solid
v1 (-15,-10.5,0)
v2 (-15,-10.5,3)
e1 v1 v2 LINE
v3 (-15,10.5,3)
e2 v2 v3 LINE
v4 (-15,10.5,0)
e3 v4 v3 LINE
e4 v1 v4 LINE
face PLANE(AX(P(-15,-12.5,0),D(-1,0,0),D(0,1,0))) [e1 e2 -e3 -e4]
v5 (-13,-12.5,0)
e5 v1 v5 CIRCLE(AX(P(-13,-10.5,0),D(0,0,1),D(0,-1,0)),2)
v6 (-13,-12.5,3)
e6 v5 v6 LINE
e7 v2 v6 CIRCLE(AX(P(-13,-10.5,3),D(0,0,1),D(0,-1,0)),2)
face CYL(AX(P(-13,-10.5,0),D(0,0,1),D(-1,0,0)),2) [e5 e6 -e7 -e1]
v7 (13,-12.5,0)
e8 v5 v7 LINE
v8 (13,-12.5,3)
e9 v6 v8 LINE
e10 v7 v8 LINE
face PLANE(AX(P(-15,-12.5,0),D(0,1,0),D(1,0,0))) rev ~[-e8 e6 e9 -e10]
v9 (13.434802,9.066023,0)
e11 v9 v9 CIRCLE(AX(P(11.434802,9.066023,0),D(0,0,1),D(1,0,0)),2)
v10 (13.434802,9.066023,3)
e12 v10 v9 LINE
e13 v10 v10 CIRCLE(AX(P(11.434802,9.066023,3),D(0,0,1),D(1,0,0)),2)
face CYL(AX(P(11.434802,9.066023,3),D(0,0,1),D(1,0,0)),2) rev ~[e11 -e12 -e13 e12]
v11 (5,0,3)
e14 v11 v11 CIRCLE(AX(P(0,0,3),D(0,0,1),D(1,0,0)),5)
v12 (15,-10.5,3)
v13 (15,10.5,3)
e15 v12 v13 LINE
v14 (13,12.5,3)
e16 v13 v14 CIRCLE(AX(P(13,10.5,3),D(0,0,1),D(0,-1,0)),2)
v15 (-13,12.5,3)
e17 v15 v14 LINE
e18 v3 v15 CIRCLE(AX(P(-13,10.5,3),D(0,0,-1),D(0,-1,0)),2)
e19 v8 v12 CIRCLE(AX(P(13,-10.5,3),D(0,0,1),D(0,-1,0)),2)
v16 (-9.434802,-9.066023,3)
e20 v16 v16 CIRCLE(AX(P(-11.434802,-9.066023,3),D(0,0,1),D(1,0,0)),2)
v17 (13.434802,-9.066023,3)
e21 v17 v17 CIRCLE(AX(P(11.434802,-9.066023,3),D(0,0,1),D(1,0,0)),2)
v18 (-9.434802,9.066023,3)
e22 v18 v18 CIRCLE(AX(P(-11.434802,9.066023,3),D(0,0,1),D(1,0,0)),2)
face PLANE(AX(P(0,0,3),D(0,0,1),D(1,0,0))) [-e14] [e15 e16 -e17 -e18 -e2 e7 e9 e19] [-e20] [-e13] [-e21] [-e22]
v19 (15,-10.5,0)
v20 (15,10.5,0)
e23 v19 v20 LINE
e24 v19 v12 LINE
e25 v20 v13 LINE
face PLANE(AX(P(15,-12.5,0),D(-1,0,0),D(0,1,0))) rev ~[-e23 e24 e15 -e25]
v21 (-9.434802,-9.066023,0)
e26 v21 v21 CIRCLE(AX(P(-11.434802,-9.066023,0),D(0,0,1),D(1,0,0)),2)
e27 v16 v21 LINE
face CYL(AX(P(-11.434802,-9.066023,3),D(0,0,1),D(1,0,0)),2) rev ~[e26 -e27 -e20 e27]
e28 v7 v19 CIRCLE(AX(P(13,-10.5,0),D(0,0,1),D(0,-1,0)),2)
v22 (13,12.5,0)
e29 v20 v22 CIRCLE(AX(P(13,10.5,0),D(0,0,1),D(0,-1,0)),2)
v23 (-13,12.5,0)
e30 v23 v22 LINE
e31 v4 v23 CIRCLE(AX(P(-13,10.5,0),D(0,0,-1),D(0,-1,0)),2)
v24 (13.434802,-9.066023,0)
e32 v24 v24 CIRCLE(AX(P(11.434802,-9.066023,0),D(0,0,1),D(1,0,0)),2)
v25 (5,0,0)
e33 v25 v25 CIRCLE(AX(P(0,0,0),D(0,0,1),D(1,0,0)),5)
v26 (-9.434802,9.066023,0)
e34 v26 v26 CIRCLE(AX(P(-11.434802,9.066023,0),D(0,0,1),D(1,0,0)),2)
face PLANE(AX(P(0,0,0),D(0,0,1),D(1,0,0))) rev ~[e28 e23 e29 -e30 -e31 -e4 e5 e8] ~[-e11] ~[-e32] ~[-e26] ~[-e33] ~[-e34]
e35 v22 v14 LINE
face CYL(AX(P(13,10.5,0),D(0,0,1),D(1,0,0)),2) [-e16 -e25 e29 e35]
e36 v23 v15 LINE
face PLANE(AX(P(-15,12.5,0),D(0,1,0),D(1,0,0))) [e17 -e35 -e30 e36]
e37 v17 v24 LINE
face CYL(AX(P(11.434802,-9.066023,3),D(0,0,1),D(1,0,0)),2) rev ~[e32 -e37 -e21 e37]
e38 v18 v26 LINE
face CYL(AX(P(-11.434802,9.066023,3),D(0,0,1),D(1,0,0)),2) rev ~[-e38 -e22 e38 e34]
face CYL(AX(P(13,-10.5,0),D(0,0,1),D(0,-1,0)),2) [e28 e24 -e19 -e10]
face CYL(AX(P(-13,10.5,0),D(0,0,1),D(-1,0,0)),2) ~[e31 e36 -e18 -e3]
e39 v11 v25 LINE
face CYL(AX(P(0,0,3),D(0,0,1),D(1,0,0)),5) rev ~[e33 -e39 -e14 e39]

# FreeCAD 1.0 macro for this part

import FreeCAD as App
import Part
import Sketcher

V = App.Vector


def edges_at(feature, points):
    """Names of the edges that pass closest to the given points."""
    edges = feature.Shape.Edges
    near = lambda p: min(range(len(edges)), key=lambda i: edges[i].distToShape(Part.Vertex(*p))[0])
    return sorted({f"Edge{near(p) + 1}" for p in points})


def add_polygon(sketch, points):
    """Adds a closed chain of lines whose ends are joined by coincident constraints."""
    first, n = sketch.GeometryCount, len(points)
    for a, b in zip(points, points[1:] + points[:1]):
        sketch.addGeometry(Part.LineSegment(App.Vector(*a, 0), App.Vector(*b, 0)), False)
    for i in range(n):
        sketch.addConstraint(Sketcher.Constraint("Coincident", first + i, 2, first + (i + 1) % n, 1))

doc = App.newDocument("Part")
params = doc.addObject("Spreadsheet::Sheet", "Params")
for row, (alias, value) in enumerate([
    ("sketch1_width", "30 mm"),
    ("sketch1_height", "25 mm"),
    ("pad1_length", "3 mm"),
    ("fillet_radius", "2 mm"),
    ("sketch2_diameter", "10 mm"),
    ("pocket1_length", "3 mm"),
    ("sketch3_diameter", "4 mm"),
    ("pocket2_length", "3 mm"),
], start=1):
    params.set(f"A{row}", alias)
    params.set(f"B{row}", "=" + value)
    params.setAlias(f"B{row}", alias)

body = doc.addObject("PartDesign::Body", "Body")

sketch1 = doc.addObject("Sketcher::SketchObject", "Sketch")
body.addObject(sketch1)
sketch1.AttachmentSupport = (doc.XY_Plane, [""])
sketch1.MapMode = "FlatFace"
add_polygon(sketch1, [(-15, 12.5), (-15, -12.5), (15, -12.5), (15, 12.5)])
sketch1.addConstraint(Sketcher.Constraint("Vertical", 0))
sketch1.addConstraint(Sketcher.Constraint("Horizontal", 1))
sketch1.addConstraint(Sketcher.Constraint("Vertical", 2))
sketch1.addConstraint(Sketcher.Constraint("Horizontal", 3))
sketch1.addConstraint(Sketcher.Constraint("Symmetric", 0, 2, 2, 2, -1, 1))
sketch1.addConstraint(Sketcher.Constraint("DistanceX", 1, 1, 1, 2, 30.0))
sketch1.addConstraint(Sketcher.Constraint("DistanceY", 0, 2, 0, 1, 25.0))
sketch1.setExpression("Constraints[9]", "Params.sketch1_width")
sketch1.setExpression("Constraints[10]", "Params.sketch1_height")
pad1 = doc.addObject("PartDesign::Pad", "Pad")
body.addObject(pad1)
pad1.Profile = sketch1
pad1.setExpression("Length", "Params.pad1_length")
doc.recompute()

fillet = doc.addObject("PartDesign::Fillet", "Fillet")
body.addObject(fillet)
fillet.Base = (pad1, edges_at(pad1, [
    (15, 12.5, 1.5),
    (-15, 12.5, 1.5),
    (-15, -12.5, 1.5),
    (15, -12.5, 1.5),
]))
fillet.setExpression("Radius", "Params.fillet_radius")

sketch2 = doc.addObject("Sketcher::SketchObject", "Sketch001")
body.addObject(sketch2)
sketch2.AttachmentSupport = (doc.XY_Plane, [""])
sketch2.MapMode = "FlatFace"
sketch2.AttachmentOffset = App.Placement(V(0, 0, 3), App.Rotation())
sketch2.addGeometry(Part.Circle(V(0, 0, 0), V(0, 0, 1), 5), False)
sketch2.addConstraint(Sketcher.Constraint("Coincident", 0, 3, -1, 1))
sketch2.addConstraint(Sketcher.Constraint("Diameter", 0, 10.0))
sketch2.setExpression("Constraints[1]", "Params.sketch2_diameter")
pocket1 = doc.addObject("PartDesign::Pocket", "Pocket")
body.addObject(pocket1)
pocket1.Profile = sketch2
pocket1.setExpression("Length", "Params.pocket1_length")

sketch3 = doc.addObject("Sketcher::SketchObject", "Sketch002")
body.addObject(sketch3)
sketch3.AttachmentSupport = (doc.XY_Plane, [""])
sketch3.MapMode = "FlatFace"
sketch3.AttachmentOffset = App.Placement(V(0, 0, 3), App.Rotation())
sketch3.addGeometry(Part.Circle(V(-11.434802, 9.066023, 0), V(0, 0, 1), 2), False)
sketch3.addGeometry(Part.Circle(V(11.434802, 9.066023, 0), V(0, 0, 1), 2), False)
sketch3.addGeometry(Part.Circle(V(-11.434802, -9.066023, 0), V(0, 0, 1), 2), False)
sketch3.addGeometry(Part.Circle(V(11.434802, -9.066023, 0), V(0, 0, 1), 2), False)
sketch3.addConstraint(Sketcher.Constraint("Equal", 0, 1))
sketch3.addConstraint(Sketcher.Constraint("Equal", 1, 2))
sketch3.addConstraint(Sketcher.Constraint("Equal", 2, 3))
sketch3.addConstraint(Sketcher.Constraint("Symmetric", 1, 3, 2, 3, -1, 1))
sketch3.addConstraint(Sketcher.Constraint("Symmetric", 0, 3, 3, 3, -1, 1))
sketch3.addConstraint(Sketcher.Constraint("Symmetric", 0, 3, 1, 3, -2))
sketch3.addConstraint(Sketcher.Constraint("Diameter", 0, 4.0))
sketch3.addConstraint(Sketcher.Constraint("DistanceX", 0, 3, -1, 1, 11.434802))
sketch3.addConstraint(Sketcher.Constraint("DistanceY", -1, 1, 0, 3, 9.066023))
sketch3.setExpression("Constraints[6]", "Params.sketch3_diameter")
pocket2 = doc.addObject("PartDesign::Pocket", "Pocket001")
body.addObject(pocket2)
pocket2.Profile = sketch3
pocket2.setExpression("Length", "Params.pocket2_length")

doc.recompute()
